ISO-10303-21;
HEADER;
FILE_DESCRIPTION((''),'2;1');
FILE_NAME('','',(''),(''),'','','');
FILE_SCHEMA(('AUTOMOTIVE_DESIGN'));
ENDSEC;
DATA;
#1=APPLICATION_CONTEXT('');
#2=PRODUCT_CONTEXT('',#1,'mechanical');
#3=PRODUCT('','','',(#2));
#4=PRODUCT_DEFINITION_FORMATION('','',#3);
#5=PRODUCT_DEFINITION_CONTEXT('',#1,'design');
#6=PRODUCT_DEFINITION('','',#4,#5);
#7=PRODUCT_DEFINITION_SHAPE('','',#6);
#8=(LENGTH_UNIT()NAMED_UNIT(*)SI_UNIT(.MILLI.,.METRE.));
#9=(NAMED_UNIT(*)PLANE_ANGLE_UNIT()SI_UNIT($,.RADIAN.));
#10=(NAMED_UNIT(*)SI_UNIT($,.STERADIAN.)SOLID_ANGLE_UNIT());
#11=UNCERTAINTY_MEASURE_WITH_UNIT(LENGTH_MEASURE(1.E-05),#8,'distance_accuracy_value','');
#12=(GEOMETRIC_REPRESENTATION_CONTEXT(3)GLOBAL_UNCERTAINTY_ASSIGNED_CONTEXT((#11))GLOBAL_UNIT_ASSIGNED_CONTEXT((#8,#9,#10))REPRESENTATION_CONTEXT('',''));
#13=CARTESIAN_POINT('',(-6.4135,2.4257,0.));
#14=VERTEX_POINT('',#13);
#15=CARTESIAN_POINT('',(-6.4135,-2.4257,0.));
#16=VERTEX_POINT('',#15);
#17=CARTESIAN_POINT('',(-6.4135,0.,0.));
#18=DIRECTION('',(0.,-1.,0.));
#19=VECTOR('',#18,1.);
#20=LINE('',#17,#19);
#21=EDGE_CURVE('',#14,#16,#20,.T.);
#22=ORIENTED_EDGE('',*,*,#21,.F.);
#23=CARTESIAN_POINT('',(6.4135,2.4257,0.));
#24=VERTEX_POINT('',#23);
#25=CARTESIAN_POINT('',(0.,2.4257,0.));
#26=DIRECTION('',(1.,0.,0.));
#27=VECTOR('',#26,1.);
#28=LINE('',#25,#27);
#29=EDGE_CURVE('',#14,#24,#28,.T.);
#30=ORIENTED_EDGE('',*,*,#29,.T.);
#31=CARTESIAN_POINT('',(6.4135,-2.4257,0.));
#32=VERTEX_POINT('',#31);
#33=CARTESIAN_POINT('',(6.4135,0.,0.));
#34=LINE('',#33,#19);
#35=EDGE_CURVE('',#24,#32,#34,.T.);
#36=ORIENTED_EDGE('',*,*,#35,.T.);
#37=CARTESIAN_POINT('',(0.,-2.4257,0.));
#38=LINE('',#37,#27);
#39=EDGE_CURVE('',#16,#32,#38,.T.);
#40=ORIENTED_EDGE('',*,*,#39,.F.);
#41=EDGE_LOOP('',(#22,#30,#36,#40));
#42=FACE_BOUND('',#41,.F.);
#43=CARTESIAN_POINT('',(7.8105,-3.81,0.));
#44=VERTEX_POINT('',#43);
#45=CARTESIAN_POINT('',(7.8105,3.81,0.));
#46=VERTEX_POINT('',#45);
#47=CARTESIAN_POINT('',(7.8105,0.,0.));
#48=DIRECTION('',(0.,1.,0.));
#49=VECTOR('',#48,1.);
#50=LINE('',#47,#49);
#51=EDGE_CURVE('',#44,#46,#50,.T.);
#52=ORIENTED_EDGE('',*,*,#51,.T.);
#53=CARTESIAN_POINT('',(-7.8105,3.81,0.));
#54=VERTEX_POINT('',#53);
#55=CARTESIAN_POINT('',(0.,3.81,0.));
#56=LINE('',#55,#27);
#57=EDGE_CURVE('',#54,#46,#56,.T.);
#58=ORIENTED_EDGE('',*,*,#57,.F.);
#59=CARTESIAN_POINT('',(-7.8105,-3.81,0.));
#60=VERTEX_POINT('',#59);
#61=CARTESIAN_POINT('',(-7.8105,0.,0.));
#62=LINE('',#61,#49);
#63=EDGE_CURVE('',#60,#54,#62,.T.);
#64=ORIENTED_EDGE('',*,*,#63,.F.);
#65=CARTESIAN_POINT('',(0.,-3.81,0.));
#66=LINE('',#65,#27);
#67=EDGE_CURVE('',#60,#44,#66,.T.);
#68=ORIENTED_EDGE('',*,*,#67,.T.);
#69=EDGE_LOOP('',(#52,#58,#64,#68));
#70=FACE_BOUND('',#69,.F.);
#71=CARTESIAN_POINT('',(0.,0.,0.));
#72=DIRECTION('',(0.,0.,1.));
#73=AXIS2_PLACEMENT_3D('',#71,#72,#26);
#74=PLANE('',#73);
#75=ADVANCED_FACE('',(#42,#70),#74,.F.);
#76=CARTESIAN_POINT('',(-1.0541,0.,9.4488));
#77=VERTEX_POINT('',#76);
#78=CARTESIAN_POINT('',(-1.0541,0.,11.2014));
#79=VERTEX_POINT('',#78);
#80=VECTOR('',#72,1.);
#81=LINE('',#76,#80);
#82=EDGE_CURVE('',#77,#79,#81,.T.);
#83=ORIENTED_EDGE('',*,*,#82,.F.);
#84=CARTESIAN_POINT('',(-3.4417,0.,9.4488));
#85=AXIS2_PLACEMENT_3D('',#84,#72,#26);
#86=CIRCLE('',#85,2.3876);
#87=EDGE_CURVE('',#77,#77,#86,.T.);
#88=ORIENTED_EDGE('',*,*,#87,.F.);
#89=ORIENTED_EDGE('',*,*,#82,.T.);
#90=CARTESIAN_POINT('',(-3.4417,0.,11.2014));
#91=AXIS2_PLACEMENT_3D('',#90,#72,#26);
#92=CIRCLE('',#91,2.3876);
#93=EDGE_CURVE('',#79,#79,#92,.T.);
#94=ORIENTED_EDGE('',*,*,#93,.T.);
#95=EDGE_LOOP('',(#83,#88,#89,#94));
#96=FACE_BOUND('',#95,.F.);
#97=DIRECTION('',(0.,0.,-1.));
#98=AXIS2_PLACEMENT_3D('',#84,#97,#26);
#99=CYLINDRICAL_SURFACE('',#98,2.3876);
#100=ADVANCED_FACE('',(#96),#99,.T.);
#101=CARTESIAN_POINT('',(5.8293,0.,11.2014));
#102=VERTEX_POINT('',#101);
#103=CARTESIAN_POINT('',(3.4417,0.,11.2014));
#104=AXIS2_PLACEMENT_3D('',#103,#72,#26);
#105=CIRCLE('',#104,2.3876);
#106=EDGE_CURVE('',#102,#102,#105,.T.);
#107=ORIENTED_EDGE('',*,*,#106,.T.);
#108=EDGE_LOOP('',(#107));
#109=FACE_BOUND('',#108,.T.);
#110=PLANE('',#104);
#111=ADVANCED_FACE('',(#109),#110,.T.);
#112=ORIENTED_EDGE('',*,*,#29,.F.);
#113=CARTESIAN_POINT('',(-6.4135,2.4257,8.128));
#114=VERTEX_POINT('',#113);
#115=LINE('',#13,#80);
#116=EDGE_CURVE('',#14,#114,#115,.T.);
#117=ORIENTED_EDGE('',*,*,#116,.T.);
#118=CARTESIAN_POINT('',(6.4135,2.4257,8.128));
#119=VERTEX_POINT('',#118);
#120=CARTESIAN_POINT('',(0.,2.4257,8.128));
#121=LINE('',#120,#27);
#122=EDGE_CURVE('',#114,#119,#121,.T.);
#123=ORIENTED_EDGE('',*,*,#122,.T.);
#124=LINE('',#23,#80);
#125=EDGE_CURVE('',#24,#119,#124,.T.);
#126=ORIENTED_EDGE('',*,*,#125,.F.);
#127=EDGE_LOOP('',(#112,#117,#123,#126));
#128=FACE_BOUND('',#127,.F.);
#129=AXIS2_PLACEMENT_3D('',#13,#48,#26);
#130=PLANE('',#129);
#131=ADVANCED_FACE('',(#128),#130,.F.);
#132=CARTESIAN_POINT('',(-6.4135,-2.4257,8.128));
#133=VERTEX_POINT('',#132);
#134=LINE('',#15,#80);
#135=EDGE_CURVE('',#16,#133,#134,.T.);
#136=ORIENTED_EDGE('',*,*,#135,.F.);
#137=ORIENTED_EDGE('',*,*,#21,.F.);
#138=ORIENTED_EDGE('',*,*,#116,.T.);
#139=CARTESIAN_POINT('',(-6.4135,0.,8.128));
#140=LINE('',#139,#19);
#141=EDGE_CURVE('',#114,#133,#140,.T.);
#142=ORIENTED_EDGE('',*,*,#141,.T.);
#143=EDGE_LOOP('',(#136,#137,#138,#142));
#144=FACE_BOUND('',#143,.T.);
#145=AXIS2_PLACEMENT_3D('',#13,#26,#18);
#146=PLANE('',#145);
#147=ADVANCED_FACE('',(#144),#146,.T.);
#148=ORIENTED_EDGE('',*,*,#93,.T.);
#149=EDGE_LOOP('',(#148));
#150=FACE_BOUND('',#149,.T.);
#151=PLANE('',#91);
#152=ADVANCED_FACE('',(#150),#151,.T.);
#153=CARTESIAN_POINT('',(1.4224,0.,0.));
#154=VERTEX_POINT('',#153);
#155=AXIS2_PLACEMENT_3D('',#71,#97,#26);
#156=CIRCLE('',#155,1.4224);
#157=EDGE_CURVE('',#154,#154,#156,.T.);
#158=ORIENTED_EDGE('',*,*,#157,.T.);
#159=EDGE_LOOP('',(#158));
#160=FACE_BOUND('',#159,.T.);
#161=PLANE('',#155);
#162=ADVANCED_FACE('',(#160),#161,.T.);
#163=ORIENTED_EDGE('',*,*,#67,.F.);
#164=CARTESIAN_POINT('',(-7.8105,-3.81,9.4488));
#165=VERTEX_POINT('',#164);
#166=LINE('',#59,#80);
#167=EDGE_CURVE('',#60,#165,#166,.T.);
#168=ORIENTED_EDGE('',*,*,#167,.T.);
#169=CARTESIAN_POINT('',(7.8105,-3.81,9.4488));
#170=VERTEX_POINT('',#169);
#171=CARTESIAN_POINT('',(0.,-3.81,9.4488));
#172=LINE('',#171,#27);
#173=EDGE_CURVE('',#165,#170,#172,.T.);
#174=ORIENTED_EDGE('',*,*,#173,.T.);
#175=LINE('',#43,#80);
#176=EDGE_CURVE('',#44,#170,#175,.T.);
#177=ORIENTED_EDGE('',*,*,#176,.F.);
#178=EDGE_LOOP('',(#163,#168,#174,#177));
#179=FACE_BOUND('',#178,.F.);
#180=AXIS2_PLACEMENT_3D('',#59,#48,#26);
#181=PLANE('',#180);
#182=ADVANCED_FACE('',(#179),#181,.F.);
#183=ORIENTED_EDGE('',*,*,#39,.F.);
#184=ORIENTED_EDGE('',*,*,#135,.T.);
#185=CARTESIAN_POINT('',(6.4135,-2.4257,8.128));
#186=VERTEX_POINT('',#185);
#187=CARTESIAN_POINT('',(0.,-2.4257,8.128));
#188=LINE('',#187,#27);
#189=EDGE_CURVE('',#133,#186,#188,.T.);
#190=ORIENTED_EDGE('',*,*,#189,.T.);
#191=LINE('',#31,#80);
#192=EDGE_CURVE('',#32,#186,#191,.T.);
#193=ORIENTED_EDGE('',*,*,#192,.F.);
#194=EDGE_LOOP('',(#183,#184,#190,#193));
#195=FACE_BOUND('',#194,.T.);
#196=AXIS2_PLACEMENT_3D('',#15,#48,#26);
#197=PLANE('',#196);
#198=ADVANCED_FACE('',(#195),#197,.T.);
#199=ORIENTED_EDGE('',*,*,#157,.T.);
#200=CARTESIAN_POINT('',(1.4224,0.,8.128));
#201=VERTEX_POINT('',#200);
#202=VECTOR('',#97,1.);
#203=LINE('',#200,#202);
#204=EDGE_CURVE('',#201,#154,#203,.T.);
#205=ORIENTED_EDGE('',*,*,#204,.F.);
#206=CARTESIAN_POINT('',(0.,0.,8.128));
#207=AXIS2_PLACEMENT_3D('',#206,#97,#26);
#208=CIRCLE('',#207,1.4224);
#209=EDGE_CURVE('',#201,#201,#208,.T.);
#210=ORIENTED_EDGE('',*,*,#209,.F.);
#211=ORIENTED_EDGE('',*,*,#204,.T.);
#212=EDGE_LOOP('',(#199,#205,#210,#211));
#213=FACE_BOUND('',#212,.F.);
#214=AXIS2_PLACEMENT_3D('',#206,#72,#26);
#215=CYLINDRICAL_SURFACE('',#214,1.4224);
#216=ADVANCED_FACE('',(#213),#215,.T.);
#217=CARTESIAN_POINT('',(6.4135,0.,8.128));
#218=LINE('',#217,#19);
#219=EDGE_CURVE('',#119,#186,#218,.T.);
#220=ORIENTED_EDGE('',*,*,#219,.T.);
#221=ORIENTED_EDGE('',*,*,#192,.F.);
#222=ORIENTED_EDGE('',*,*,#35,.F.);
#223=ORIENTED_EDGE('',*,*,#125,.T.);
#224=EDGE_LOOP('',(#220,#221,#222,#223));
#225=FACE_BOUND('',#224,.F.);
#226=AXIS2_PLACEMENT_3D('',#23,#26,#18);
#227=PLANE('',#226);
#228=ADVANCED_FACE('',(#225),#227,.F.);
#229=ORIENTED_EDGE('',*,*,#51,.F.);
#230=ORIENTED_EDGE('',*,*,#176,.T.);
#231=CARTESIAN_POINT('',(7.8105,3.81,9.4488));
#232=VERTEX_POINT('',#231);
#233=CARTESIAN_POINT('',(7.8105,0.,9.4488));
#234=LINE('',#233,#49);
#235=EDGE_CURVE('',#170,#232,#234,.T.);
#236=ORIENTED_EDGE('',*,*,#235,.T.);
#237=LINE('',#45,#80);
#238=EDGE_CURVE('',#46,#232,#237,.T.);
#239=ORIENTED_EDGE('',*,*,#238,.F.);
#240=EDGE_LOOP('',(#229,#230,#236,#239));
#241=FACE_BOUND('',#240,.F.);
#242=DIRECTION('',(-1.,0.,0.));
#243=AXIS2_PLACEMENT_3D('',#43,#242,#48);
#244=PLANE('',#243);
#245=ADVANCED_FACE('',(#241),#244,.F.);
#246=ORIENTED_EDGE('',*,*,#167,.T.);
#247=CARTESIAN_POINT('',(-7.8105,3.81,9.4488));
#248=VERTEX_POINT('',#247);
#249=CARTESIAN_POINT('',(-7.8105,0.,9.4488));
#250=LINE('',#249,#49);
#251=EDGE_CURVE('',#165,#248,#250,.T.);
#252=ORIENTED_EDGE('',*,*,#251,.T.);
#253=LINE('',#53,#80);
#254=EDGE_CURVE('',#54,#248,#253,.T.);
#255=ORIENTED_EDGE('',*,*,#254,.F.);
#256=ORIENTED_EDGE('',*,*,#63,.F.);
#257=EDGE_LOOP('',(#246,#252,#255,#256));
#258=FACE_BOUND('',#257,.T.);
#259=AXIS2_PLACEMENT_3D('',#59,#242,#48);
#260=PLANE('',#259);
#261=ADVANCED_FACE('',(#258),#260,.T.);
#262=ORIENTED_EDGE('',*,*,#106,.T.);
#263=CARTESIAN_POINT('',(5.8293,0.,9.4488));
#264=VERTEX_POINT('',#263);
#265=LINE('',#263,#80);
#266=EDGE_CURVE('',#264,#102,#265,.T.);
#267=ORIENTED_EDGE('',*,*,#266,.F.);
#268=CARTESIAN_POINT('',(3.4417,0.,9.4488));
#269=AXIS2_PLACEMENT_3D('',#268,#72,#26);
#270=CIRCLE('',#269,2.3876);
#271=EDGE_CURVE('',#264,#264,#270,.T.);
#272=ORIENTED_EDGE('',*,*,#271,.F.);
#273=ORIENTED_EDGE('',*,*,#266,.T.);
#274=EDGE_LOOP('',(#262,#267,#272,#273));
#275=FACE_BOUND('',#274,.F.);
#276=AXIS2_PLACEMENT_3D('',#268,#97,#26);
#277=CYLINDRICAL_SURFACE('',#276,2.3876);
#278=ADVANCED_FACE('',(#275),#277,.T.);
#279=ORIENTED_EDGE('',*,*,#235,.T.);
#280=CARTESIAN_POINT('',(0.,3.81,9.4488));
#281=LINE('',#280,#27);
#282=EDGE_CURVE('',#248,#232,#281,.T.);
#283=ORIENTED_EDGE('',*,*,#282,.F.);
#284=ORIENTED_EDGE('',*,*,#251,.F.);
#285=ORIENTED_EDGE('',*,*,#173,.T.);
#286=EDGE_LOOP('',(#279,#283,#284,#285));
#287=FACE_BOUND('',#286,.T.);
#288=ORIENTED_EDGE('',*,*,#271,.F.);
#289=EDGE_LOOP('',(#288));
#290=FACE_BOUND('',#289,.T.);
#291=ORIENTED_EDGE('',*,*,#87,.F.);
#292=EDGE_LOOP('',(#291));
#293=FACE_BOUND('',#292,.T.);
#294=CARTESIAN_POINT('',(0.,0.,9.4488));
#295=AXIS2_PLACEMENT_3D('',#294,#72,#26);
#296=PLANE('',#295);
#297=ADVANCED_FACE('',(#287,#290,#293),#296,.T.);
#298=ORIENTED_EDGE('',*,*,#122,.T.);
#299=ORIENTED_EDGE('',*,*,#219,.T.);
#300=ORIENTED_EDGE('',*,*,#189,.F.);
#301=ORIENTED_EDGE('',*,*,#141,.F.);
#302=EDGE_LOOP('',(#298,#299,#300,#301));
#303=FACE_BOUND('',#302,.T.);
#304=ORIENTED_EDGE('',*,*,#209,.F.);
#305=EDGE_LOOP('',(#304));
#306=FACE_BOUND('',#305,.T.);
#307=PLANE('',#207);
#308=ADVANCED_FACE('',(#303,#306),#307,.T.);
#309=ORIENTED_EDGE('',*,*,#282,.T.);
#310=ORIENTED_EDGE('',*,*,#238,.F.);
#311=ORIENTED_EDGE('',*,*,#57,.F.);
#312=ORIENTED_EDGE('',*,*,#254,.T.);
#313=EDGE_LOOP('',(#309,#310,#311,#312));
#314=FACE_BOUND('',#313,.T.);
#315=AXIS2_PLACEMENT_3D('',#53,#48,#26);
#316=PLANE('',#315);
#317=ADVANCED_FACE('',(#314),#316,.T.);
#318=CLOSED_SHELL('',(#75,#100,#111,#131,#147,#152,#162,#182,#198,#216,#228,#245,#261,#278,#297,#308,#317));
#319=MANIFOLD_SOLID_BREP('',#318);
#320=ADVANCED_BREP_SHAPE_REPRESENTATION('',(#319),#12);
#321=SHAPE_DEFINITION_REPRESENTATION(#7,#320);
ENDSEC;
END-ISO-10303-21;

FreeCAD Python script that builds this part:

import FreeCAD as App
import Part
import Sketcher
from FreeCAD import Vector
Q = App.Units.Quantity

doc = App.newDocument("Part")
body = doc.addObject("PartDesign::Body", "Body")

sketch1 = body.newObject("Sketcher::SketchObject", "Sketch")
sketch1.AttachmentSupport = (doc.getObject("XY_Plane"), [""])
sketch1.MapMode = "FlatFace"
sketch1.addGeometry([
    Part.LineSegment(Vector(-8, 4, 0), Vector(-8, -4, 0)),
    Part.LineSegment(Vector(-8, -4, 0), Vector(8, -4, 0)),
    Part.LineSegment(Vector(8, -4, 0), Vector(8, 4, 0)),
    Part.LineSegment(Vector(8, 4, 0), Vector(-8, 4, 0)),
], False)
sketch1.addConstraint([
    Sketcher.Constraint("Coincident", 0, 2, 1, 1),
    Sketcher.Constraint("Coincident", 1, 2, 2, 1),
    Sketcher.Constraint("Coincident", 2, 2, 3, 1),
    Sketcher.Constraint("Coincident", 3, 2, 0, 1),
    Sketcher.Constraint("Vertical", 0),
    Sketcher.Constraint("Horizontal", 1),
    Sketcher.Constraint("Vertical", 2),
    Sketcher.Constraint("Horizontal", 3),
    Sketcher.Constraint("Symmetric", 0, 2, 2, 2, -1, 1),
    Sketcher.Constraint("DistanceY", 0, 2, 0, 1, Q("0.3 in")),
    Sketcher.Constraint("DistanceX", 1, 1, 1, 2, Q("0.615 in")),
])
pad1 = body.newObject("PartDesign::Pad", "Pad")
pad1.Profile = sketch1
pad1.Length = Q("0.372 in")

sketch2 = body.newObject("Sketcher::SketchObject", "Sketch001")
sketch2.AttachmentSupport = (doc.getObject("XY_Plane"), [""])
sketch2.MapMode = "FlatFace"
sketch2.AttachmentOffset = App.Placement(Vector(0, 0, 0.372 * 25.4), App.Rotation())
sketch2.addGeometry([
    Part.Circle(Vector(-3.4, 0, 0), Vector(0, 0, 1), 2.4),
    Part.Circle(Vector(3.4, 0, 0), Vector(0, 0, 1), 2.4),
], False)
sketch2.addConstraint([
    Sketcher.Constraint("Equal", 0, 1),
    Sketcher.Constraint("Symmetric", 0, 3, 1, 3, -1, 1),
    Sketcher.Constraint("PointOnObject", 0, 3, -1),
    Sketcher.Constraint("Diameter", 0, Q("0.188 in")),
    Sketcher.Constraint("DistanceX", 0, 3, 1, 3, Q("0.271 in")),
])
pad2 = body.newObject("PartDesign::Pad", "Pad001")
pad2.Profile = sketch2
pad2.Length = Q("0.069 in")

sketch3 = body.newObject("Sketcher::SketchObject", "Sketch002")
sketch3.AttachmentSupport = (doc.getObject("XY_Plane"), [""])
sketch3.MapMode = "FlatFace"
sketch3.addGeometry([
    Part.LineSegment(Vector(-6.4, -2.4, 0), Vector(-6.4, 2.4, 0)),
    Part.LineSegment(Vector(-6.4, 2.4, 0), Vector(6.4, 2.4, 0)),
    Part.LineSegment(Vector(6.4, 2.4, 0), Vector(6.4, -2.4, 0)),
    Part.LineSegment(Vector(6.4, -2.4, 0), Vector(-6.4, -2.4, 0)),
], False)
sketch3.addConstraint([
    Sketcher.Constraint("Coincident", 0, 2, 1, 1),
    Sketcher.Constraint("Coincident", 1, 2, 2, 1),
    Sketcher.Constraint("Coincident", 2, 2, 3, 1),
    Sketcher.Constraint("Coincident", 3, 2, 0, 1),
    Sketcher.Constraint("Vertical", 0),
    Sketcher.Constraint("Horizontal", 1),
    Sketcher.Constraint("Vertical", 2),
    Sketcher.Constraint("Horizontal", 3),
    Sketcher.Constraint("Symmetric", 0, 2, 2, 2, -1, 1),
    Sketcher.Constraint("DistanceX", 1, 1, 1, 2, Q("0.505 in")),
    Sketcher.Constraint("DistanceY", 0, 1, 0, 2, Q("0.191 in")),
])
pocket1 = body.newObject("PartDesign::Pocket", "Pocket")
pocket1.Profile = sketch3
pocket1.Length = Q("0.32 in")
pocket1.Reversed = True

sketch4 = body.newObject("Sketcher::SketchObject", "Sketch003")
sketch4.AttachmentSupport = (doc.getObject("XY_Plane"), [""])
sketch4.MapMode = "FlatFace"
sketch4.AttachmentOffset = App.Placement(Vector(0, 0, 0.32 * 25.4), App.Rotation())
sketch4.addGeometry(Part.Circle(Vector(0, 0, 0), Vector(0, 0, 1), 1.4), False)
sketch4.addConstraint([
    Sketcher.Constraint("Coincident", 0, 3, -1, 1),
    Sketcher.Constraint("Diameter", 0, Q("0.112 in")),
])
pad3 = body.newObject("PartDesign::Pad", "Pad002")
pad3.Profile = sketch4
pad3.Length = Q("0.32 in")
pad3.Reversed = True

doc.recompute()
